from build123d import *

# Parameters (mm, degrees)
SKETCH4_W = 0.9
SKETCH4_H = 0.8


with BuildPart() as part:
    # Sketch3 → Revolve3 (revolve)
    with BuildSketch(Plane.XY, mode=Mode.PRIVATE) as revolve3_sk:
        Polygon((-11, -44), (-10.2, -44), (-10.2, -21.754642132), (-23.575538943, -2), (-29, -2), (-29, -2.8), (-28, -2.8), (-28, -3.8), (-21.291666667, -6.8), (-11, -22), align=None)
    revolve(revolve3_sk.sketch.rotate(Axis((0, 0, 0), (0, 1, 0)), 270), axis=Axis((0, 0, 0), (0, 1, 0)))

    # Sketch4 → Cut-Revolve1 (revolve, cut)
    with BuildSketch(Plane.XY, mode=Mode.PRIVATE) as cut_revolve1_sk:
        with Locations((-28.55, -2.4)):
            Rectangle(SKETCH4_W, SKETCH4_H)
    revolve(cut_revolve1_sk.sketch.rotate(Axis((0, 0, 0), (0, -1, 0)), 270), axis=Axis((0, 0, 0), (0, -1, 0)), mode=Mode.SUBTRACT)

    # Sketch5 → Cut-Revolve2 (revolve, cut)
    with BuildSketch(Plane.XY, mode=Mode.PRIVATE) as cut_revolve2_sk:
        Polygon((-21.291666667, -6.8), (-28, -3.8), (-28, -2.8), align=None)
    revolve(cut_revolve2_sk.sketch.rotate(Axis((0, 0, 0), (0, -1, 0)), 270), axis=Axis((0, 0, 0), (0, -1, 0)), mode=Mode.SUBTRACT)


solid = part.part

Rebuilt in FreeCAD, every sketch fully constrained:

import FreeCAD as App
import Part
import Sketcher

V = App.Vector
Q = App.Units.Quantity

doc = App.newDocument("Part")
body = doc.addObject("PartDesign::Body", "Body")

# Sketch on XY plane
sketch1 = doc.addObject("Sketcher::SketchObject", "Sketch")
body.addObject(sketch1)
sketch1.AttachmentSupport = (doc.XY_Plane, [""])
sketch1.MapMode = "FlatFace"
sketch1.addGeometry([
    Part.LineSegment(V(-11, -44, 0), V(-10.2, -44, 0)),  # 0
    Part.LineSegment(V(-10.2, -44, 0), V(-10.2, -21.8, 0)),  # 1
    Part.LineSegment(V(-10.2, -21.8, 0), V(-23.6, -2, 0)),  # 2
    Part.LineSegment(V(-23.6, -2, 0), V(-29, -2, 0)),  # 3
    Part.LineSegment(V(-29, -2, 0), V(-29, -2.8, 0)),  # 4
    Part.LineSegment(V(-29, -2.8, 0), V(-28, -2.8, 0)),  # 5
    Part.LineSegment(V(-28, -2.8, 0), V(-28, -3.8, 0)),  # 6
    Part.LineSegment(V(-28, -3.8, 0), V(-21.3, -6.8, 0)),  # 7
    Part.LineSegment(V(-21.3, -6.8, 0), V(-11, -22, 0)),  # 8
    Part.LineSegment(V(-11, -22, 0), V(-11, -44, 0)),  # 9
], False)
sketch1.addConstraint([
    Sketcher.Constraint("Coincident", 0, 2, 1, 1),
    Sketcher.Constraint("Coincident", 1, 2, 2, 1),
    Sketcher.Constraint("Coincident", 2, 2, 3, 1),
    Sketcher.Constraint("Coincident", 3, 2, 4, 1),
    Sketcher.Constraint("Coincident", 4, 2, 5, 1),
    Sketcher.Constraint("Coincident", 5, 2, 6, 1),
    Sketcher.Constraint("Coincident", 6, 2, 7, 1),
    Sketcher.Constraint("Coincident", 7, 2, 8, 1),
    Sketcher.Constraint("Coincident", 8, 2, 9, 1),
    Sketcher.Constraint("Coincident", 9, 2, 0, 1),
    Sketcher.Constraint("Horizontal", 0),
    Sketcher.Constraint("Vertical", 1),
    Sketcher.Constraint("Horizontal", 3),
    Sketcher.Constraint("Vertical", 4),
    Sketcher.Constraint("Horizontal", 5),
    Sketcher.Constraint("Vertical", 6),
    Sketcher.Constraint("Vertical", 9),
    Sketcher.Constraint("Parallel", 2, 8),
    Sketcher.Constraint("Equal", 0, 4),
    Sketcher.Constraint("Equal", 5, 6),
    Sketcher.Constraint("DistanceX", 5, 1, 5, 2, Q("1 mm")),
    Sketcher.Constraint("DistanceY", 9, 2, 9, 1, Q("22 mm")),
    Sketcher.Constraint("DistanceX", 0, 1, 0, 2, Q("0.8 mm")),
    Sketcher.Constraint("DistanceY", 0, 2, -1, 1, Q("44 mm")),
    Sketcher.Constraint("DistanceY", 2, 2, -1, 1, Q("2 mm")),
    Sketcher.Constraint("DistanceX", 3, 2, -1, 1, Q("29 mm")),
    Sketcher.Constraint("DistanceX", 8, 2, -1, 1, Q("11 mm")),
    Sketcher.Constraint("DistanceY", 7, 2, 6, 2, Q("3 mm")),
    Sketcher.Constraint("DistanceX", 3, 2, 3, 1, Q("5.424461 mm")),
    Sketcher.Constraint("DistanceY", 1, 1, 1, 2, Q("22.245358 mm")),
])
revolution = doc.addObject("PartDesign::Revolution", "Revolution")
body.addObject(revolution)
revolution.Profile = sketch1
revolution.ReferenceAxis = (sketch1, ["V_Axis"])
revolution.Angle = 360

# Sketch on XY plane
sketch2 = doc.addObject("Sketcher::SketchObject", "Sketch001")
body.addObject(sketch2)
sketch2.AttachmentSupport = (doc.XY_Plane, [""])
sketch2.MapMode = "FlatFace"
sketch2.addGeometry([
    Part.LineSegment(V(-29, -2, 0), V(-29, -2.8, 0)),
    Part.LineSegment(V(-29, -2.8, 0), V(-28.1, -2.8, 0)),
    Part.LineSegment(V(-28.1, -2.8, 0), V(-28.1, -2, 0)),
    Part.LineSegment(V(-28.1, -2, 0), V(-29, -2, 0)),
], False)
sketch2.addConstraint([
    Sketcher.Constraint("Coincident", 0, 2, 1, 1),
    Sketcher.Constraint("Coincident", 1, 2, 2, 1),
    Sketcher.Constraint("Coincident", 2, 2, 3, 1),
    Sketcher.Constraint("Coincident", 3, 2, 0, 1),
    Sketcher.Constraint("Vertical", 0),
    Sketcher.Constraint("Horizontal", 1),
    Sketcher.Constraint("Vertical", 2),
    Sketcher.Constraint("Horizontal", 3),
    Sketcher.Constraint("DistanceX", 1, 1, 1, 2, Q("0.9 mm")),
    Sketcher.Constraint("DistanceY", 0, 2, 0, 1, Q("0.8 mm")),
    Sketcher.Constraint("DistanceX", 0, 2, -1, 1, Q("29 mm")),
    Sketcher.Constraint("DistanceY", 2, 2, -1, 1, Q("2 mm")),
])
groove = doc.addObject("PartDesign::Groove", "Groove")
body.addObject(groove)
groove.Profile = sketch2
groove.ReferenceAxis = (sketch2, ["V_Axis"])
groove.Angle = 360

# Sketch on XY plane
sketch3 = doc.addObject("Sketcher::SketchObject", "Sketch002")
body.addObject(sketch3)
sketch3.AttachmentSupport = (doc.XY_Plane, [""])
sketch3.MapMode = "FlatFace"
sketch3.addGeometry([
    Part.LineSegment(V(-28, -3.8, 0), V(-21.3, -6.8, 0)),
    Part.LineSegment(V(-21.3, -6.8, 0), V(-28, -2.8, 0)),
    Part.LineSegment(V(-28, -2.8, 0), V(-28, -3.8, 0)),
], False)
sketch3.addConstraint([
    Sketcher.Constraint("Coincident", 0, 2, 1, 1),
    Sketcher.Constraint("Coincident", 1, 2, 2, 1),
    Sketcher.Constraint("Coincident", 2, 2, 0, 1),
    Sketcher.Constraint("Vertical", 2),
    Sketcher.Constraint("DistanceY", 2, 2, 2, 1, Q("1 mm")),
    Sketcher.Constraint("DistanceX", 1, 2, -1, 1, Q("28 mm")),
    Sketcher.Constraint("DistanceY", 0, 2, 1, 2, Q("4 mm")),
    Sketcher.Constraint("DistanceY", 0, 2, -1, 1, Q("6.8 mm")),
    Sketcher.Constraint("Distance", 1, Q("7.810361 mm")),
])
groove2 = doc.addObject("PartDesign::Groove", "Groove001")
body.addObject(groove2)
groove2.Profile = sketch3
groove2.ReferenceAxis = (sketch3, ["V_Axis"])
groove2.Angle = 360

doc.recompute()
